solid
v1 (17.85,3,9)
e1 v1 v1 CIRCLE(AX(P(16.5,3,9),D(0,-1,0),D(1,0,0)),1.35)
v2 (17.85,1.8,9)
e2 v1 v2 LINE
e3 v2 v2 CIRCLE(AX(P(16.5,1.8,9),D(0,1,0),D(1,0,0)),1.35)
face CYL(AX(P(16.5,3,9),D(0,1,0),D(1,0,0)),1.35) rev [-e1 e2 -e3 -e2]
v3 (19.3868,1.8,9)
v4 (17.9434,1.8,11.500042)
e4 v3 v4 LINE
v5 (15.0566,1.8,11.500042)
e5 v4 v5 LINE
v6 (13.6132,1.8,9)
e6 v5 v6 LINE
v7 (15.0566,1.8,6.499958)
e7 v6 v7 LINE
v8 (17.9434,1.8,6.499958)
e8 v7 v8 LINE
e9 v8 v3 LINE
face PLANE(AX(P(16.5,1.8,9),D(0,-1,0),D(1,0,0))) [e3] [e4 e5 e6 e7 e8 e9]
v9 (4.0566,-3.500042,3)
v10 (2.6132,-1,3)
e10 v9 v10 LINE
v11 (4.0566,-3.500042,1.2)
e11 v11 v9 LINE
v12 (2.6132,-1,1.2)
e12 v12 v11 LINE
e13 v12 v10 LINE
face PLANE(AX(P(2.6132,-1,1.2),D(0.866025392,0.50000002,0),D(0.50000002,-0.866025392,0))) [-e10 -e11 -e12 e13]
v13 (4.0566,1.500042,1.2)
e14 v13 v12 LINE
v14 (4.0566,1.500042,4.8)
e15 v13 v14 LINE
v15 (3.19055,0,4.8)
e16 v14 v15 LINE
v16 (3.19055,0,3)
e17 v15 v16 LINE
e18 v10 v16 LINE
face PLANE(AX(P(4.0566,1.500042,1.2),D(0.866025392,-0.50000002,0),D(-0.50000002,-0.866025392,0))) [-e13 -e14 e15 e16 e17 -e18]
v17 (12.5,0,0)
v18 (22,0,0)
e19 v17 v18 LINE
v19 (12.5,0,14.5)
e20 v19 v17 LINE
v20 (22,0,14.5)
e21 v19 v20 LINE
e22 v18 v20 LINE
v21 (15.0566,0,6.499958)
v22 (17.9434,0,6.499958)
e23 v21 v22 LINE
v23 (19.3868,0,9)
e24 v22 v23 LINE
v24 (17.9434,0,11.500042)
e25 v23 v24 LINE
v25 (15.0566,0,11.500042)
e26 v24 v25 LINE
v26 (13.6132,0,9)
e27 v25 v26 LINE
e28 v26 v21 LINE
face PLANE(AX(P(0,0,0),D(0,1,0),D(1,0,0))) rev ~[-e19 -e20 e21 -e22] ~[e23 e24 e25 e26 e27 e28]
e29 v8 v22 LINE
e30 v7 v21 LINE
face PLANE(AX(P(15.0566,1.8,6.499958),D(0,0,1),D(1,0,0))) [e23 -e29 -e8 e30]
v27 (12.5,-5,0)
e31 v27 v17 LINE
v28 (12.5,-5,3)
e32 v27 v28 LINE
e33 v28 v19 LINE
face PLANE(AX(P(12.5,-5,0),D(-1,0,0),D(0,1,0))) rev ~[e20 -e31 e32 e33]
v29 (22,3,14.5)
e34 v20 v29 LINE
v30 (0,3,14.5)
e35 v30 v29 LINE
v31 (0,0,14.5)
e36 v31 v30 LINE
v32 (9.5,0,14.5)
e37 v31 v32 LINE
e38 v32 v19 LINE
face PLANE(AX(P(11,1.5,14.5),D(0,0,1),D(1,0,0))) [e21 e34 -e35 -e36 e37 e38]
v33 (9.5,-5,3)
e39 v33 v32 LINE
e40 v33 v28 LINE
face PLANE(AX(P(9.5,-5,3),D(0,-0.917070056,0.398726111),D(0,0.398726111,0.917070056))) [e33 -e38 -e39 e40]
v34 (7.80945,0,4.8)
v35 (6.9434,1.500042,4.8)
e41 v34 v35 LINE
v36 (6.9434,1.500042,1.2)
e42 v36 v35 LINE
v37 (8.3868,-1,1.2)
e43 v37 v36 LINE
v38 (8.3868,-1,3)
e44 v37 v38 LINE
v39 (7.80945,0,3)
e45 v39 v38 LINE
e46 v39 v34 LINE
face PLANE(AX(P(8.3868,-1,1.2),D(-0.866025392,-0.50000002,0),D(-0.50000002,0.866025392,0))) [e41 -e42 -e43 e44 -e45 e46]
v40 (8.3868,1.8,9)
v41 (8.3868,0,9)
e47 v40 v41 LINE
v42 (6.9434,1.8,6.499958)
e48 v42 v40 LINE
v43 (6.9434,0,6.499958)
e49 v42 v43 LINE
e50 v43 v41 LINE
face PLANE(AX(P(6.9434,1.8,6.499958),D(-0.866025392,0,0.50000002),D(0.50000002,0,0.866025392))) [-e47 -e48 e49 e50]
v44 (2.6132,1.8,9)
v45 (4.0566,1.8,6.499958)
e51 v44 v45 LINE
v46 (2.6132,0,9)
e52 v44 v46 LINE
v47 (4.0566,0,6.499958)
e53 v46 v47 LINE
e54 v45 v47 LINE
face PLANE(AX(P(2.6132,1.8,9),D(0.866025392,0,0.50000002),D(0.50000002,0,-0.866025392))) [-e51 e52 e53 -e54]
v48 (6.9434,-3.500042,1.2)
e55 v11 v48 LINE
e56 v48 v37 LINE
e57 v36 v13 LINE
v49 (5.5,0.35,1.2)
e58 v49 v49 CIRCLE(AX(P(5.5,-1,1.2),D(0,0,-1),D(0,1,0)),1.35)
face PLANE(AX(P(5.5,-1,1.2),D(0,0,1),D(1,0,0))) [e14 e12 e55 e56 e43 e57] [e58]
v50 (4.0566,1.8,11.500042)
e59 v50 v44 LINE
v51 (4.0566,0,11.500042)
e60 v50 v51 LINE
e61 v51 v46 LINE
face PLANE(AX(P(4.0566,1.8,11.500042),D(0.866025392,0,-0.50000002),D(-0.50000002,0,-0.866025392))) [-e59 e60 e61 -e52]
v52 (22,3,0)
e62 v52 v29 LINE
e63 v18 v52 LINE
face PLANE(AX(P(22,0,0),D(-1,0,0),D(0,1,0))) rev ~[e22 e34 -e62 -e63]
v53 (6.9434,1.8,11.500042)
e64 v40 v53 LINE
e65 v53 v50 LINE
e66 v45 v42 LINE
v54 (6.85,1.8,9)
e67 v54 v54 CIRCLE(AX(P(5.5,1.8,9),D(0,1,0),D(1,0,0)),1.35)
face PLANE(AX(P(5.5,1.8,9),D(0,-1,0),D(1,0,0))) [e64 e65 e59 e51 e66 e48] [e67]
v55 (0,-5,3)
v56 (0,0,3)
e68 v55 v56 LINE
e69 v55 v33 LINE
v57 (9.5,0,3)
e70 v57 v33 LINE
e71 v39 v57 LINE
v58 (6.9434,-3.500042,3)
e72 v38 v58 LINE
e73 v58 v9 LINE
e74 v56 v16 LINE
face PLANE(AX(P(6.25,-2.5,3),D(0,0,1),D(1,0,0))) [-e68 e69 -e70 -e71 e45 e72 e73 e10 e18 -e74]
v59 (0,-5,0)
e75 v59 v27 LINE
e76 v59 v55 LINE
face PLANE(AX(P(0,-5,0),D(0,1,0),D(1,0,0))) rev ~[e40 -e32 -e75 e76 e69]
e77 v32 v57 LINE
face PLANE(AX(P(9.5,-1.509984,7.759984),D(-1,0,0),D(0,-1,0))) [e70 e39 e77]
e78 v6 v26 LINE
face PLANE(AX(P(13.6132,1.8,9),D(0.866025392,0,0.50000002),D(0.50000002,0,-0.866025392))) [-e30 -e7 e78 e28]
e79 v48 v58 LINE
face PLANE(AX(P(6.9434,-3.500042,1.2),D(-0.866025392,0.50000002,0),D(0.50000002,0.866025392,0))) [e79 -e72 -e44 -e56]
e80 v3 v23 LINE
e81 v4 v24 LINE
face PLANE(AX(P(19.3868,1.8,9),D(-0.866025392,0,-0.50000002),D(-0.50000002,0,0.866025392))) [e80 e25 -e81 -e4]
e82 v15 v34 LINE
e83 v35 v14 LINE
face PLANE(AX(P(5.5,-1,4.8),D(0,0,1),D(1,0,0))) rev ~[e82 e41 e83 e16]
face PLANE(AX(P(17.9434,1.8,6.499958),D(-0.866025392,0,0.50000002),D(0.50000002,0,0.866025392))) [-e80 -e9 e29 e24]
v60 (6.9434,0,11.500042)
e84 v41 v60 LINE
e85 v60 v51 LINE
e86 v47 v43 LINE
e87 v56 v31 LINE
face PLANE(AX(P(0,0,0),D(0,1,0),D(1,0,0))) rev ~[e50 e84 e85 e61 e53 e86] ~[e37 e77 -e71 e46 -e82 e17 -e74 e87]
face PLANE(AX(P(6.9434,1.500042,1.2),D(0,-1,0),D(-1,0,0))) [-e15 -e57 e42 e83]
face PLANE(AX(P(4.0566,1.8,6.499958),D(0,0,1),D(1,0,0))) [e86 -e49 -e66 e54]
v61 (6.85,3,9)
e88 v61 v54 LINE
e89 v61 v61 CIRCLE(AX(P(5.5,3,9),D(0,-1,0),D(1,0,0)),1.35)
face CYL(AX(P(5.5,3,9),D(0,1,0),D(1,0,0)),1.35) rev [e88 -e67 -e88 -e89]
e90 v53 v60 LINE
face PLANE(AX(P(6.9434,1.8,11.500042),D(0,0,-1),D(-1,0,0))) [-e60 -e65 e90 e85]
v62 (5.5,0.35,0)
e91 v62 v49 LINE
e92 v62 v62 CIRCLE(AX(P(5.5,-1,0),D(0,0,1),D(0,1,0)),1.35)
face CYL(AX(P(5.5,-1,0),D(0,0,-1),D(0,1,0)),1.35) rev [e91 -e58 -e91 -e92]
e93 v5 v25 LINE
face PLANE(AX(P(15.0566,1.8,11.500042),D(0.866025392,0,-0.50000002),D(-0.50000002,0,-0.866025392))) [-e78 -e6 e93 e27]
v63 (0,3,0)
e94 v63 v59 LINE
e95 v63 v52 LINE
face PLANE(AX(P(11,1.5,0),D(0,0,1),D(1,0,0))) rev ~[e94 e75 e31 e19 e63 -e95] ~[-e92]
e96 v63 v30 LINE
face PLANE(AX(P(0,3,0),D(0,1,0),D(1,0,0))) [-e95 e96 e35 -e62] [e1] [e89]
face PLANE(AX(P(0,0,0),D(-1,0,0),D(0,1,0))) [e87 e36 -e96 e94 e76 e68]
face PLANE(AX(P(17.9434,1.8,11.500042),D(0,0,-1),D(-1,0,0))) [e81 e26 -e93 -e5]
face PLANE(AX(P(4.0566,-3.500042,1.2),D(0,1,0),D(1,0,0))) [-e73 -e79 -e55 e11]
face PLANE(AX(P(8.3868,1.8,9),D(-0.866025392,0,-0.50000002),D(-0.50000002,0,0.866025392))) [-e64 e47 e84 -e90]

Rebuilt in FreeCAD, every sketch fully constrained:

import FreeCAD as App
import Part
import Sketcher
Q = App.Units.Quantity

doc = App.newDocument("Part")
params = doc.addObject("Spreadsheet::Sheet", "Params")
for row, (alias, value) in enumerate([
    ("pad1_length", "3.6 mm"),
    ("sketch2_diameter", "2.7 mm"),
    ("pad2_length", "3 mm"),
    ("pad3_length", "1.8 mm"),
    ("sketch4_diameter", "2.7 mm"),
    ("pad4_length", "30 mm"),
    ("pad5_length", "1.8 mm"),
    ("sketch6_diameter", "2.7 mm"),
    ("pad6_length", "3 mm"),
    ("sketch7_width", "22 mm"),
    ("sketch7_height", "3 mm"),
    ("pad7_length", "14.5 mm"),
    ("sketch8_height", "5 mm"),
    ("sketch8_width", "12.5 mm"),
    ("pad8_length", "3 mm"),
    ("sketch9_width", "5 mm"),
    ("sketch9_height", "11.5 mm"),
    ("pad9_length", "3 mm"),
], start=1):
    params.set(f"A{row}", alias)
    params.set(f"B{row}", "=" + value)
    params.setAlias(f"B{row}", alias)

body = doc.addObject("PartDesign::Body", "Body")

# Sketch on XY plane
sketch1 = body.newObject("Sketcher::SketchObject", "Sketch")
sketch1.AttachmentSupport = (doc.getObject("XY_Plane"), [""])
sketch1.MapMode = "FlatFace"
sketch1.addGeometry(Part.LineSegment(App.Vector(2.9, 0, 0), App.Vector(1.4, 2.5, 0)), False)
sketch1.addGeometry(Part.LineSegment(App.Vector(1.4, 2.5, 0), App.Vector(-1.4, 2.5, 0)), False)
sketch1.addGeometry(Part.LineSegment(App.Vector(-1.4, 2.5, 0), App.Vector(-2.9, 0, 0)), False)
sketch1.addGeometry(Part.LineSegment(App.Vector(-2.9, 0, 0), App.Vector(-1.4, -2.5, 0)), False)
sketch1.addGeometry(Part.LineSegment(App.Vector(-1.4, -2.5, 0), App.Vector(1.4, -2.5, 0)), False)
sketch1.addGeometry(Part.LineSegment(App.Vector(1.4, -2.5, 0), App.Vector(2.9, 0, 0)), False)
sketch1.addConstraint(Sketcher.Constraint("Coincident", 0, 2, 1, 1))
sketch1.addConstraint(Sketcher.Constraint("Coincident", 1, 2, 2, 1))
sketch1.addConstraint(Sketcher.Constraint("Coincident", 2, 2, 3, 1))
sketch1.addConstraint(Sketcher.Constraint("Coincident", 3, 2, 4, 1))
sketch1.addConstraint(Sketcher.Constraint("Coincident", 4, 2, 5, 1))
sketch1.addConstraint(Sketcher.Constraint("Coincident", 5, 2, 0, 1))
sketch1.addConstraint(Sketcher.Constraint("Horizontal", 1))
sketch1.addConstraint(Sketcher.Constraint("Horizontal", 4))
sketch1.addConstraint(Sketcher.Constraint("Symmetric", 0, 2, 3, 2, -1, 1))
sketch1.addConstraint(Sketcher.Constraint("Symmetric", 2, 2, 5, 2, -1, 1))
sketch1.addConstraint(Sketcher.Constraint("PointOnObject", 2, 2, -1))
sketch1.addConstraint(Sketcher.Constraint("Parallel", 2, 5))
sketch1.addConstraint(Sketcher.Constraint("Vertical", 1, 2, 3, 2))
sketch1.addConstraint(Sketcher.Constraint("Angle", 0, Q("120.000001 deg")))
sketch1.addConstraint(Sketcher.Constraint("DistanceX", 1, 2, 1, 1, Q("2.8868 mm")))
sketch1.addConstraint(Sketcher.Constraint("Distance", 0, Q("2.8868 mm")))
pad1 = body.newObject("PartDesign::Pad", "Pad")
pad1.Profile = sketch1
pad1.setExpression("Length", "Params.pad1_length")
body2 = doc.addObject("PartDesign::Body", "Body001")
doc.recompute()

body.Placement = App.Placement(App.Vector(5.5, -1, 1.2), App.Rotation(App.Vector(0, 0, 1), 0))
boolean = body2.newObject("PartDesign::Boolean", "Boolean")
boolean.Type = "Fuse"
boolean.addObjects([body])
body3 = doc.addObject("PartDesign::Body", "Body002")

# Sketch on XY plane
sketch2 = body3.newObject("Sketcher::SketchObject", "Sketch001")
sketch2.AttachmentSupport = (doc.getObject("XY_Plane002"), [""])
sketch2.MapMode = "FlatFace"
sketch2.addGeometry(Part.Circle(App.Vector(5.5, -1, 0), App.Vector(0, 0, 1), 1.4), False)
sketch2.addConstraint(Sketcher.Constraint("Diameter", 0, Q("2.7 mm")))
sketch2.addConstraint(Sketcher.Constraint("DistanceY", 0, 3, -1, 1, Q("1 mm")))
sketch2.addConstraint(Sketcher.Constraint("DistanceX", -1, 1, 0, 3, Q("5.5 mm")))
sketch2.setExpression("Constraints[0]", "Params.sketch2_diameter")
pad2 = body3.newObject("PartDesign::Pad", "Pad001")
pad2.Profile = sketch2
pad2.setExpression("Length", "Params.pad2_length")
doc.recompute()

boolean2 = body3.newObject("PartDesign::Boolean", "Boolean001")
boolean2.Type = "Fuse"
boolean2.addObjects([body2])
body4 = doc.addObject("PartDesign::Body", "Body003")

# Sketch on XZ plane
sketch3 = body4.newObject("Sketcher::SketchObject", "Sketch002")
sketch3.AttachmentSupport = (doc.getObject("XZ_Plane003"), [""])
sketch3.MapMode = "FlatFace"
sketch3.AttachmentOffset = App.Placement(App.Vector(0, 0, -1.8), App.Rotation())
sketch3.addGeometry(Part.LineSegment(App.Vector(19.4, 9, 0), App.Vector(17.9, 11.5, 0)), False)
sketch3.addGeometry(Part.LineSegment(App.Vector(17.9, 11.5, 0), App.Vector(15.1, 11.5, 0)), False)
sketch3.addGeometry(Part.LineSegment(App.Vector(15.1, 11.5, 0), App.Vector(13.6, 9, 0)), False)
sketch3.addGeometry(Part.LineSegment(App.Vector(13.6, 9, 0), App.Vector(15.1, 6.5, 0)), False)
sketch3.addGeometry(Part.LineSegment(App.Vector(15.1, 6.5, 0), App.Vector(17.9, 6.5, 0)), False)
sketch3.addGeometry(Part.LineSegment(App.Vector(17.9, 6.5, 0), App.Vector(19.4, 9, 0)), False)
sketch3.addConstraint(Sketcher.Constraint("Coincident", 0, 2, 1, 1))
sketch3.addConstraint(Sketcher.Constraint("Coincident", 1, 2, 2, 1))
sketch3.addConstraint(Sketcher.Constraint("Coincident", 2, 2, 3, 1))
sketch3.addConstraint(Sketcher.Constraint("Coincident", 3, 2, 4, 1))
sketch3.addConstraint(Sketcher.Constraint("Coincident", 4, 2, 5, 1))
sketch3.addConstraint(Sketcher.Constraint("Coincident", 5, 2, 0, 1))
sketch3.addConstraint(Sketcher.Constraint("Horizontal", 1))
sketch3.addConstraint(Sketcher.Constraint("Horizontal", 4))
sketch3.addConstraint(Sketcher.Constraint("Parallel", 0, 3))
sketch3.addConstraint(Sketcher.Constraint("Parallel", 2, 5))
sketch3.addConstraint(Sketcher.Constraint("Horizontal", 2, 2, 5, 2))
sketch3.addConstraint(Sketcher.Constraint("Vertical", 1, 2, 3, 2))
sketch3.addConstraint(Sketcher.Constraint("Vertical", 0, 2, 4, 2))
sketch3.addConstraint(Sketcher.Constraint("Angle", 0, Q("120.000001 deg")))
sketch3.addConstraint(Sketcher.Constraint("DistanceY", -1, 1, 2, 2, Q("9 mm")))
sketch3.addConstraint(Sketcher.Constraint("DistanceX", 1, 2, 1, 1, Q("2.8868 mm")))
sketch3.addConstraint(Sketcher.Constraint("Distance", 0, Q("2.8868 mm")))
sketch3.addConstraint(Sketcher.Constraint("DistanceX", -1, 1, 0, 2, Q("17.9434 mm")))
pad3 = body4.newObject("PartDesign::Pad", "Pad002")
pad3.Profile = sketch3
pad3.setExpression("Length", "Params.pad3_length")
body5 = doc.addObject("PartDesign::Body", "Body004")

# Sketch on XZ plane
sketch4 = body5.newObject("Sketcher::SketchObject", "Sketch003")
sketch4.AttachmentSupport = (doc.getObject("XZ_Plane004"), [""])
sketch4.MapMode = "FlatFace"
sketch4.AttachmentOffset = App.Placement(App.Vector(0, 0, -3), App.Rotation())
sketch4.addGeometry(Part.Circle(App.Vector(16.5, 9, 0), App.Vector(0, 0, 1), 1.4), False)
sketch4.addConstraint(Sketcher.Constraint("Diameter", 0, Q("2.7 mm")))
sketch4.addConstraint(Sketcher.Constraint("DistanceY", -1, 1, 0, 3, Q("9 mm")))
sketch4.addConstraint(Sketcher.Constraint("DistanceX", -1, 1, 0, 3, Q("16.5 mm")))
sketch4.setExpression("Constraints[0]", "Params.sketch4_diameter")
pad4 = body5.newObject("PartDesign::Pad", "Pad003")
pad4.Profile = sketch4
pad4.setExpression("Length", "Params.pad4_length")
doc.recompute()

boolean3 = body5.newObject("PartDesign::Boolean", "Boolean002")
boolean3.Type = "Fuse"
boolean3.addObjects([body4])
body6 = doc.addObject("PartDesign::Body", "Body005")

# Sketch on XZ plane
sketch5 = body6.newObject("Sketcher::SketchObject", "Sketch004")
sketch5.AttachmentSupport = (doc.getObject("XZ_Plane005"), [""])
sketch5.MapMode = "FlatFace"
sketch5.AttachmentOffset = App.Placement(App.Vector(0, 0, -1.8), App.Rotation())
sketch5.addGeometry(Part.LineSegment(App.Vector(8.4, 9, 0), App.Vector(6.9, 11.5, 0)), False)
sketch5.addGeometry(Part.LineSegment(App.Vector(6.9, 11.5, 0), App.Vector(4.1, 11.5, 0)), False)
sketch5.addGeometry(Part.LineSegment(App.Vector(4.1, 11.5, 0), App.Vector(2.6, 9, 0)), False)
sketch5.addGeometry(Part.LineSegment(App.Vector(2.6, 9, 0), App.Vector(4.1, 6.5, 0)), False)
sketch5.addGeometry(Part.LineSegment(App.Vector(4.1, 6.5, 0), App.Vector(6.9, 6.5, 0)), False)
sketch5.addGeometry(Part.LineSegment(App.Vector(6.9, 6.5, 0), App.Vector(8.4, 9, 0)), False)
sketch5.addConstraint(Sketcher.Constraint("Coincident", 0, 2, 1, 1))
sketch5.addConstraint(Sketcher.Constraint("Coincident", 1, 2, 2, 1))
sketch5.addConstraint(Sketcher.Constraint("Coincident", 2, 2, 3, 1))
sketch5.addConstraint(Sketcher.Constraint("Coincident", 3, 2, 4, 1))
sketch5.addConstraint(Sketcher.Constraint("Coincident", 4, 2, 5, 1))
sketch5.addConstraint(Sketcher.Constraint("Coincident", 5, 2, 0, 1))
sketch5.addConstraint(Sketcher.Constraint("Horizontal", 1))
sketch5.addConstraint(Sketcher.Constraint("Horizontal", 4))
sketch5.addConstraint(Sketcher.Constraint("Parallel", 0, 3))
sketch5.addConstraint(Sketcher.Constraint("Parallel", 2, 5))
sketch5.addConstraint(Sketcher.Constraint("Horizontal", 2, 2, 5, 2))
sketch5.addConstraint(Sketcher.Constraint("Vertical", 1, 2, 3, 2))
sketch5.addConstraint(Sketcher.Constraint("Vertical", 0, 2, 4, 2))
sketch5.addConstraint(Sketcher.Constraint("Angle", 0, Q("120.000001 deg")))
sketch5.addConstraint(Sketcher.Constraint("DistanceY", -1, 1, 2, 2, Q("9 mm")))
sketch5.addConstraint(Sketcher.Constraint("DistanceX", 1, 2, 1, 1, Q("2.8868 mm")))
sketch5.addConstraint(Sketcher.Constraint("Distance", 0, Q("2.8868 mm")))
sketch5.addConstraint(Sketcher.Constraint("DistanceX", -1, 1, 0, 2, Q("6.9434 mm")))
pad5 = body6.newObject("PartDesign::Pad", "Pad004")
pad5.Profile = sketch5
pad5.setExpression("Length", "Params.pad5_length")
body7 = doc.addObject("PartDesign::Body", "Body006")

# Sketch on XZ plane
sketch6 = body7.newObject("Sketcher::SketchObject", "Sketch005")
sketch6.AttachmentSupport = (doc.getObject("XZ_Plane006"), [""])
sketch6.MapMode = "FlatFace"
sketch6.AttachmentOffset = App.Placement(App.Vector(0, 0, -3), App.Rotation())
sketch6.addGeometry(Part.Circle(App.Vector(5.5, 9, 0), App.Vector(0, 0, 1), 1.4), False)
sketch6.addConstraint(Sketcher.Constraint("Diameter", 0, Q("2.7 mm")))
sketch6.addConstraint(Sketcher.Constraint("DistanceY", -1, 1, 0, 3, Q("9 mm")))
sketch6.addConstraint(Sketcher.Constraint("DistanceX", -1, 1, 0, 3, Q("5.5 mm")))
sketch6.setExpression("Constraints[0]", "Params.sketch6_diameter")
pad6 = body7.newObject("PartDesign::Pad", "Pad005")
pad6.Profile = sketch6
pad6.setExpression("Length", "Params.pad6_length")
doc.recompute()

boolean4 = body7.newObject("PartDesign::Boolean", "Boolean003")
boolean4.Type = "Fuse"
boolean4.addObjects([body6])
body8 = doc.addObject("PartDesign::Body", "Body007")

# Sketch on XY plane
sketch7 = body8.newObject("Sketcher::SketchObject", "Sketch006")
sketch7.AttachmentSupport = (doc.getObject("XY_Plane007"), [""])
sketch7.MapMode = "FlatFace"
sketch7.addGeometry(Part.LineSegment(App.Vector(0, 3, 0), App.Vector(0, 0, 0)), False)
sketch7.addGeometry(Part.LineSegment(App.Vector(0, 0, 0), App.Vector(22, 0, 0)), False)
sketch7.addGeometry(Part.LineSegment(App.Vector(22, 0, 0), App.Vector(22, 3, 0)), False)
sketch7.addGeometry(Part.LineSegment(App.Vector(22, 3, 0), App.Vector(0, 3, 0)), False)
sketch7.addConstraint(Sketcher.Constraint("Coincident", 0, 2, 1, 1))
sketch7.addConstraint(Sketcher.Constraint("Coincident", 1, 2, 2, 1))
sketch7.addConstraint(Sketcher.Constraint("Coincident", 2, 2, 3, 1))
sketch7.addConstraint(Sketcher.Constraint("Coincident", 3, 2, 0, 1))
sketch7.addConstraint(Sketcher.Constraint("Vertical", 0))
sketch7.addConstraint(Sketcher.Constraint("Horizontal", 1))
sketch7.addConstraint(Sketcher.Constraint("Vertical", 2))
sketch7.addConstraint(Sketcher.Constraint("Horizontal", 3))
sketch7.addConstraint(Sketcher.Constraint("Coincident", 0, 2, -1, 1))
sketch7.addConstraint(Sketcher.Constraint("DistanceX", 1, 1, 1, 2, Q("22 mm")))
sketch7.addConstraint(Sketcher.Constraint("DistanceY", 0, 2, 0, 1, Q("3 mm")))
sketch7.setExpression("Constraints[9]", "Params.sketch7_width")
sketch7.setExpression("Constraints[10]", "Params.sketch7_height")
pad7 = body8.newObject("PartDesign::Pad", "Pad006")
pad7.Profile = sketch7
pad7.setExpression("Length", "Params.pad7_length")
doc.recompute()

boolean5 = body8.newObject("PartDesign::Boolean", "Boolean004")
boolean5.Type = "Cut"
boolean5.addObjects([body7])
doc.recompute()

boolean6 = body8.newObject("PartDesign::Boolean", "Boolean005")
boolean6.Type = "Cut"
boolean6.addObjects([body5])
body9 = doc.addObject("PartDesign::Body", "Body008")

# Sketch on XY plane
sketch8 = body9.newObject("Sketcher::SketchObject", "Sketch007")
sketch8.AttachmentSupport = (doc.getObject("XY_Plane008"), [""])
sketch8.MapMode = "FlatFace"
sketch8.addGeometry(Part.LineSegment(App.Vector(0, 0, 0), App.Vector(0, -5, 0)), False)
sketch8.addGeometry(Part.LineSegment(App.Vector(0, -5, 0), App.Vector(12, -5, 0)), False)
sketch8.addGeometry(Part.LineSegment(App.Vector(12, -5, 0), App.Vector(12, 0, 0)), False)
sketch8.addGeometry(Part.LineSegment(App.Vector(12, 0, 0), App.Vector(0, 0, 0)), False)
sketch8.addConstraint(Sketcher.Constraint("Coincident", 0, 2, 1, 1))
sketch8.addConstraint(Sketcher.Constraint("Coincident", 1, 2, 2, 1))
sketch8.addConstraint(Sketcher.Constraint("Coincident", 2, 2, 3, 1))
sketch8.addConstraint(Sketcher.Constraint("Coincident", 3, 2, 0, 1))
sketch8.addConstraint(Sketcher.Constraint("Vertical", 0))
sketch8.addConstraint(Sketcher.Constraint("Horizontal", 1))
sketch8.addConstraint(Sketcher.Constraint("Vertical", 2))
sketch8.addConstraint(Sketcher.Constraint("Horizontal", 3))
sketch8.addConstraint(Sketcher.Constraint("Coincident", 3, 2, -1, 1))
sketch8.addConstraint(Sketcher.Constraint("DistanceY", 0, 2, 0, 1, Q("5 mm")))
sketch8.addConstraint(Sketcher.Constraint("DistanceX", 1, 1, 1, 2, Q("12.5 mm")))
sketch8.setExpression("Constraints[9]", "Params.sketch8_height")
sketch8.setExpression("Constraints[10]", "Params.sketch8_width")
pad8 = body9.newObject("PartDesign::Pad", "Pad007")
pad8.Profile = sketch8
pad8.setExpression("Length", "Params.pad8_length")
doc.recompute()

boolean7 = body9.newObject("PartDesign::Boolean", "Boolean006")
boolean7.Type = "Fuse"
boolean7.addObjects([body8])
doc.recompute()

boolean8 = body9.newObject("PartDesign::Boolean", "Boolean007")
boolean8.Type = "Cut"
boolean8.addObjects([body3])
body10 = doc.addObject("PartDesign::Body", "Body009")

# Sketch on YZ plane
sketch9 = body10.newObject("Sketcher::SketchObject", "Sketch008")
sketch9.AttachmentSupport = (doc.getObject("YZ_Plane009"), [""])
sketch9.MapMode = "FlatFace"
sketch9.addGeometry(Part.LineSegment(App.Vector(0, 1, 0), App.Vector(0, 13, 0)), False)
sketch9.addGeometry(Part.LineSegment(App.Vector(0, 13, 0), App.Vector(-5, 1, 0)), False)
sketch9.addGeometry(Part.LineSegment(App.Vector(-5, 1, 0), App.Vector(0, 1, 0)), False)
sketch9.addConstraint(Sketcher.Constraint("Coincident", 0, 2, 1, 1))
sketch9.addConstraint(Sketcher.Constraint("Coincident", 1, 2, 2, 1))
sketch9.addConstraint(Sketcher.Constraint("Coincident", 2, 2, 0, 1))
sketch9.addConstraint(Sketcher.Constraint("Vertical", 0))
sketch9.addConstraint(Sketcher.Constraint("Horizontal", 2))
sketch9.addConstraint(Sketcher.Constraint("PointOnObject", 0, 2, -2))
sketch9.addConstraint(Sketcher.Constraint("DistanceX", 2, 1, 2, 2, Q("5 mm")))
sketch9.addConstraint(Sketcher.Constraint("DistanceY", 0, 1, 0, 2, Q("11.5 mm")))
sketch9.addConstraint(Sketcher.Constraint("DistanceY", -1, 1, 0, 2, Q("12.9 mm")))
sketch9.setExpression("Constraints[6]", "Params.sketch9_width")
sketch9.setExpression("Constraints[7]", "Params.sketch9_height")
pad9 = body10.newObject("PartDesign::Pad", "Pad008")
pad9.Profile = sketch9
pad9.setExpression("Length", "Params.pad9_length")
body11 = doc.addObject("PartDesign::Body", "Body010")
doc.recompute()

body10.Placement = App.Placement(App.Vector(9.5, 0, 1.6), App.Rotation(App.Vector(0, 0, 1), 0))
boolean9 = body11.newObject("PartDesign::Boolean", "Boolean008")
boolean9.Type = "Fuse"
boolean9.addObjects([body10])
doc.recompute()

boolean10 = body11.newObject("PartDesign::Boolean", "Boolean009")
boolean10.Type = "Fuse"
boolean10.addObjects([body9])

doc.recompute()
